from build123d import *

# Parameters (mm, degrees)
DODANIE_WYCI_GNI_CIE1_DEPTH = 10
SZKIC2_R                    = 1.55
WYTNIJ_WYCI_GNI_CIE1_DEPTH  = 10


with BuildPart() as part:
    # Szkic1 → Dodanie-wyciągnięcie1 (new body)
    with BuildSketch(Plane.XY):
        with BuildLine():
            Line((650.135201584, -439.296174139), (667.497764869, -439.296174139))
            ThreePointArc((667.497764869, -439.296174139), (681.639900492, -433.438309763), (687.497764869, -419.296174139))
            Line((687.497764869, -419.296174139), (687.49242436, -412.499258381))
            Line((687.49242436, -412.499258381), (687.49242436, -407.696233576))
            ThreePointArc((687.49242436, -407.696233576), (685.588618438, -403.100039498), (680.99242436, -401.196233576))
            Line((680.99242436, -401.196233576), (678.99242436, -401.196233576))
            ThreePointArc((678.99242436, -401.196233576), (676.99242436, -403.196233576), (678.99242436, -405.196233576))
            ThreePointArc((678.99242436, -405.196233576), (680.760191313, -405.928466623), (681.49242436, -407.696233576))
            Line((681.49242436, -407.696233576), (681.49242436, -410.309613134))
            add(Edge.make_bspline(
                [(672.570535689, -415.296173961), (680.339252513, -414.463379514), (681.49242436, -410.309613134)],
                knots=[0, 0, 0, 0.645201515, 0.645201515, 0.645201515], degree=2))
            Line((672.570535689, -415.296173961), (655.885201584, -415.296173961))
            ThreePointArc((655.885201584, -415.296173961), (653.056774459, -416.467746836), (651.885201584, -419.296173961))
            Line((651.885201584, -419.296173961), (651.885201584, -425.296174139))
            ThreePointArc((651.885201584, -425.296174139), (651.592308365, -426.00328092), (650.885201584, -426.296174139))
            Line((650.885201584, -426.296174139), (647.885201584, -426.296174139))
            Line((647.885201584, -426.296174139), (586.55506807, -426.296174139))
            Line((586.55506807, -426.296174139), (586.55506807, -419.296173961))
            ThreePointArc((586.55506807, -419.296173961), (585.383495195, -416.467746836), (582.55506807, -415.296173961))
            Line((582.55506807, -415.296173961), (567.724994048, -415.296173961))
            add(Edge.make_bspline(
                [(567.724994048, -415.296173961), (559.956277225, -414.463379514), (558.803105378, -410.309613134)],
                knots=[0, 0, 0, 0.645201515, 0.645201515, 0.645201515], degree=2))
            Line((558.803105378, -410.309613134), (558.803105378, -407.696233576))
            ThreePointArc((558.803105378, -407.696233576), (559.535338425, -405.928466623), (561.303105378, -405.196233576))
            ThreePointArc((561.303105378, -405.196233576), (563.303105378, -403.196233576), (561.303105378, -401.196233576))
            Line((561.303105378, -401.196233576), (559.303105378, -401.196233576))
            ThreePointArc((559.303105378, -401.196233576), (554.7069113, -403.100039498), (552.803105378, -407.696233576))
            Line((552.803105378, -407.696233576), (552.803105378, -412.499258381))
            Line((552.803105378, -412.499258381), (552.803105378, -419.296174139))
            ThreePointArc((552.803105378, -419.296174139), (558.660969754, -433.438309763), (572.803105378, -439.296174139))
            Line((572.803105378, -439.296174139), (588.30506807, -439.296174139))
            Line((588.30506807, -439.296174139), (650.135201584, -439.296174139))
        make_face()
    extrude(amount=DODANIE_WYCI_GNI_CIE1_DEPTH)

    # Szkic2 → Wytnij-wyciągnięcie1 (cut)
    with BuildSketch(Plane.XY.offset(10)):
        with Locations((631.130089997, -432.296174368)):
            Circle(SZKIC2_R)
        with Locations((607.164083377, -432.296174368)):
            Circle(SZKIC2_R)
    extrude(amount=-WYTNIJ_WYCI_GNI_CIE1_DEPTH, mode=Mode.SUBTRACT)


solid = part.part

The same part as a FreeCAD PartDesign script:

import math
import FreeCAD as App
import Part
import Sketcher
Q = App.Units.Quantity

doc = App.newDocument("Part")
body = doc.addObject("PartDesign::Body", "Body")

# Sketch on XY plane
sketch1 = body.newObject("Sketcher::SketchObject", "Sketch")
sketch1.AttachmentSupport = (doc.getObject("XY_Plane"), [""])
sketch1.MapMode = "FlatFace"
sketch1.addGeometry(Part.ArcOfCircle(Part.Circle(App.Vector(667.497765, -419.296174, 0), App.Vector(0, 0, 1), 20), math.radians(-90), math.radians(0)), False)
sketch1.addGeometry(Part.LineSegment(App.Vector(687.497765, -419.296174, 0), App.Vector(687.492424, -412.499258, 0)), False)
sketch1.addGeometry(Part.LineSegment(App.Vector(687.492424, -412.499258, 0), App.Vector(687.492424, -407.696234, 0)), False)
sketch1.addGeometry(Part.ArcOfCircle(Part.Circle(App.Vector(680.992424, -407.696234, 0), App.Vector(0, 0, 1), 6.5), math.radians(0), math.radians(90)), False)
sketch1.addGeometry(Part.LineSegment(App.Vector(680.992424, -401.196234, 0), App.Vector(678.992424, -401.196234, 0)), False)
sketch1.addGeometry(Part.ArcOfCircle(Part.Circle(App.Vector(678.992424, -403.196234, 0), App.Vector(0, 0, 1), 2), math.radians(90), math.radians(270)), False)
sketch1.addGeometry(Part.ArcOfCircle(Part.Circle(App.Vector(678.992424, -407.696234, 0), App.Vector(0, 0, 1), 2.5), math.radians(0), math.radians(90)), False)
sketch1.addGeometry(Part.LineSegment(App.Vector(681.492424, -407.696234, 0), App.Vector(681.492424, -410.309613, 0)), False)
sketch1.addGeometry(Part.BSplineCurve([App.Vector(672.570536, -415.296174, 0), App.Vector(680.339253, -414.46338, 0), App.Vector(681.492424, -410.309613, 0)], [3, 3], [0, 0.645201515], False, 2, [1, 1, 1], False), False)
sketch1.addGeometry(Part.LineSegment(App.Vector(672.570536, -415.296174, 0), App.Vector(655.885202, -415.296174, 0)), False)
sketch1.addGeometry(Part.ArcOfCircle(Part.Circle(App.Vector(655.885202, -419.296174, 0), App.Vector(0, 0, 1), 4), math.radians(90), math.radians(180)), False)
sketch1.addGeometry(Part.LineSegment(App.Vector(651.885202, -419.296174, 0), App.Vector(651.885202, -425.296174, 0)), False)
sketch1.addGeometry(Part.ArcOfCircle(Part.Circle(App.Vector(650.885202, -425.296174, 0), App.Vector(0, 0, 1), 1), math.radians(-90), math.radians(0)), False)
sketch1.addGeometry(Part.LineSegment(App.Vector(650.885202, -426.296174, 0), App.Vector(586.555068, -426.296174, 0)), False)
sketch1.addGeometry(Part.LineSegment(App.Vector(586.555068, -426.296174, 0), App.Vector(586.555068, -419.296174, 0)), False)
sketch1.addGeometry(Part.ArcOfCircle(Part.Circle(App.Vector(582.555068, -419.296174, 0), App.Vector(0, 0, 1), 4), math.radians(0), math.radians(90)), False)
sketch1.addGeometry(Part.LineSegment(App.Vector(582.555068, -415.296174, 0), App.Vector(567.724994, -415.296174, 0)), False)
sketch1.addGeometry(Part.BSplineCurve([App.Vector(567.724994, -415.296174, 0), App.Vector(559.956277, -414.46338, 0), App.Vector(558.803105, -410.309613, 0)], [3, 3], [0, 0.645201515], False, 2, [1, 1, 1], False), False)
sketch1.addGeometry(Part.LineSegment(App.Vector(558.803105, -410.309613, 0), App.Vector(558.803105, -407.696234, 0)), False)
sketch1.addGeometry(Part.ArcOfCircle(Part.Circle(App.Vector(561.303105, -407.696234, 0), App.Vector(0, 0, 1), 2.5), math.radians(90), math.radians(180)), False)
sketch1.addGeometry(Part.ArcOfCircle(Part.Circle(App.Vector(561.303105, -403.196234, 0), App.Vector(0, 0, 1), 2), math.radians(-90), math.radians(90)), False)
sketch1.addGeometry(Part.LineSegment(App.Vector(561.303105, -401.196234, 0), App.Vector(559.303105, -401.196234, 0)), False)
sketch1.addGeometry(Part.ArcOfCircle(Part.Circle(App.Vector(559.303105, -407.696234, 0), App.Vector(0, 0, 1), 6.5), math.radians(90), math.radians(180)), False)
sketch1.addGeometry(Part.LineSegment(App.Vector(552.803105, -407.696234, 0), App.Vector(552.803105, -419.296174, 0)), False)
sketch1.addGeometry(Part.ArcOfCircle(Part.Circle(App.Vector(572.803105, -419.296174, 0), App.Vector(0, 0, 1), 20), math.radians(180), math.radians(270)), False)
sketch1.addGeometry(Part.LineSegment(App.Vector(572.803105, -439.296174, 0), App.Vector(667.497765, -439.296174, 0)), False)
sketch1.addConstraint(Sketcher.Constraint("Block", 8))
sketch1.addConstraint(Sketcher.Constraint("Block", 17))
sketch1.addConstraint(Sketcher.Constraint("Coincident", 0, 2, 1, 1))
sketch1.addConstraint(Sketcher.Constraint("Coincident", 1, 2, 2, 1))
sketch1.addConstraint(Sketcher.Constraint("Tangent", 2, 2, 3, 1))
sketch1.addConstraint(Sketcher.Constraint("Tangent", 3, 2, 4, 1))
sketch1.addConstraint(Sketcher.Constraint("Tangent", 4, 2, 5, 1))
sketch1.addConstraint(Sketcher.Constraint("Tangent", 5, 2, 6, 2))
sketch1.addConstraint(Sketcher.Constraint("Tangent", 6, 1, 7, 1))
sketch1.addConstraint(Sketcher.Constraint("Coincident", 7, 2, 8, 2))
sketch1.addConstraint(Sketcher.Constraint("Coincident", 8, 1, 9, 1))
sketch1.addConstraint(Sketcher.Constraint("Tangent", 9, 2, 10, 1))
sketch1.addConstraint(Sketcher.Constraint("Tangent", 10, 2, 11, 1))
sketch1.addConstraint(Sketcher.Constraint("Tangent", 11, 2, 12, 2))
sketch1.addConstraint(Sketcher.Constraint("Tangent", 12, 1, 13, 1))
sketch1.addConstraint(Sketcher.Constraint("Coincident", 13, 2, 14, 1))
sketch1.addConstraint(Sketcher.Constraint("Tangent", 14, 2, 15, 1))
sketch1.addConstraint(Sketcher.Constraint("Tangent", 15, 2, 16, 1))
sketch1.addConstraint(Sketcher.Constraint("Coincident", 16, 2, 17, 1))
sketch1.addConstraint(Sketcher.Constraint("Coincident", 17, 2, 18, 1))
sketch1.addConstraint(Sketcher.Constraint("Tangent", 18, 2, 19, 2))
sketch1.addConstraint(Sketcher.Constraint("Tangent", 19, 1, 20, 1))
sketch1.addConstraint(Sketcher.Constraint("Tangent", 20, 2, 21, 1))
sketch1.addConstraint(Sketcher.Constraint("Tangent", 21, 2, 22, 1))
sketch1.addConstraint(Sketcher.Constraint("Tangent", 22, 2, 23, 1))
sketch1.addConstraint(Sketcher.Constraint("Tangent", 23, 2, 24, 1))
sketch1.addConstraint(Sketcher.Constraint("Tangent", 24, 2, 25, 1))
sketch1.addConstraint(Sketcher.Constraint("Tangent", 25, 2, 0, 1))
sketch1.addConstraint(Sketcher.Constraint("Vertical", 2))
sketch1.addConstraint(Sketcher.Constraint("Horizontal", 4))
sketch1.addConstraint(Sketcher.Constraint("Vertical", 7))
sketch1.addConstraint(Sketcher.Constraint("Horizontal", 9))
sketch1.addConstraint(Sketcher.Constraint("Vertical", 11))
sketch1.addConstraint(Sketcher.Constraint("Horizontal", 13))
sketch1.addConstraint(Sketcher.Constraint("Vertical", 14))
sketch1.addConstraint(Sketcher.Constraint("Horizontal", 16))
sketch1.addConstraint(Sketcher.Constraint("Vertical", 18))
sketch1.addConstraint(Sketcher.Constraint("Horizontal", 21))
sketch1.addConstraint(Sketcher.Constraint("Vertical", 23))
sketch1.addConstraint(Sketcher.Constraint("Horizontal", 25))
sketch1.addConstraint(Sketcher.Constraint("Equal", 10, 15))
sketch1.addConstraint(Sketcher.Constraint("Equal", 6, 19))
sketch1.addConstraint(Sketcher.Constraint("Equal", 5, 20))
sketch1.addConstraint(Sketcher.Constraint("Equal", 3, 22))
sketch1.addConstraint(Sketcher.Constraint("Equal", 0, 24))
sketch1.addConstraint(Sketcher.Constraint("Horizontal", 3, 3, 6, 3))
sketch1.addConstraint(Sketcher.Constraint("Horizontal", 0, 3, 10, 3))
sketch1.addConstraint(Sketcher.Constraint("Horizontal", 6, 3, 19, 3))
sketch1.addConstraint(Sketcher.Constraint("Horizontal", 24, 3, 0, 2))
sketch1.addConstraint(Sketcher.Constraint("Vertical", 5, 3, 6, 3))
sketch1.addConstraint(Sketcher.Constraint("Vertical", 19, 3, 20, 3))
sketch1.addConstraint(Sketcher.Constraint("Equal", 4, 21))
sketch1.addConstraint(Sketcher.Constraint("Radius", 0, Q("20 mm")))
sketch1.addConstraint(Sketcher.Constraint("Radius", 5, Q("2 mm")))
sketch1.addConstraint(Sketcher.Constraint("Radius", 10, Q("4 mm")))
sketch1.addConstraint(Sketcher.Constraint("Radius", 12, Q("1 mm")))
sketch1.addConstraint(Sketcher.Constraint("Radius", 3, Q("6.5 mm")))
sketch1.addConstraint(Sketcher.Constraint("DistanceX", 4, 2, 4, 1, Q("2 mm")))
sketch1.addConstraint(Sketcher.Constraint("DistanceY", 11, 2, 11, 1, Q("6 mm")))
sketch1.addConstraint(Sketcher.Constraint("DistanceX", 25, 1, 25, 2, Q("94.694659 mm")))
sketch1.addConstraint(Sketcher.Constraint("DistanceY", 7, 2, 7, 1, Q("2.61338 mm")))
sketch1.addConstraint(Sketcher.Constraint("DistanceX", -1, 1, 10, 3, Q("655.885202 mm")))
sketch1.addConstraint(Sketcher.Constraint("DistanceX", 13, 2, 13, 1, Q("64.330134 mm")))
sketch1.addConstraint(Sketcher.Constraint("DistanceY", 2, 1, 2, 2, Q("4.803025 mm")))
pad1 = body.newObject("PartDesign::Pad", "Pad")
pad1.Profile = sketch1
pad1.Length = 10

# Sketch on XY plane
sketch2 = body.newObject("Sketcher::SketchObject", "Sketch001")
sketch2.AttachmentSupport = (doc.getObject("XY_Plane"), [""])
sketch2.MapMode = "FlatFace"
sketch2.AttachmentOffset = App.Placement(App.Vector(0, 0, 10), App.Rotation())
sketch2.addGeometry(Part.Circle(App.Vector(631.1, -432.3, 0), App.Vector(0, 0, 1), 1.6), False)
sketch2.addGeometry(Part.Circle(App.Vector(607.2, -432.3, 0), App.Vector(0, 0, 1), 1.6), False)
sketch2.addConstraint(Sketcher.Constraint("Equal", 0, 1))
sketch2.addConstraint(Sketcher.Constraint("Horizontal", 0, 3, 1, 3))
sketch2.addConstraint(Sketcher.Constraint("Diameter", 0, Q("3.1 mm")))
sketch2.addConstraint(Sketcher.Constraint("DistanceX", -1, 1, 0, 3, Q("631.13009 mm")))
sketch2.addConstraint(Sketcher.Constraint("DistanceY", 0, 3, -1, 1, Q("432.296174 mm")))
sketch2.addConstraint(Sketcher.Constraint("DistanceX", -1, 1, 1, 3, Q("607.164083 mm")))
pocket1 = body.newObject("PartDesign::Pocket", "Pocket")
pocket1.Profile = sketch2
pocket1.Length = 10

doc.recompute()
